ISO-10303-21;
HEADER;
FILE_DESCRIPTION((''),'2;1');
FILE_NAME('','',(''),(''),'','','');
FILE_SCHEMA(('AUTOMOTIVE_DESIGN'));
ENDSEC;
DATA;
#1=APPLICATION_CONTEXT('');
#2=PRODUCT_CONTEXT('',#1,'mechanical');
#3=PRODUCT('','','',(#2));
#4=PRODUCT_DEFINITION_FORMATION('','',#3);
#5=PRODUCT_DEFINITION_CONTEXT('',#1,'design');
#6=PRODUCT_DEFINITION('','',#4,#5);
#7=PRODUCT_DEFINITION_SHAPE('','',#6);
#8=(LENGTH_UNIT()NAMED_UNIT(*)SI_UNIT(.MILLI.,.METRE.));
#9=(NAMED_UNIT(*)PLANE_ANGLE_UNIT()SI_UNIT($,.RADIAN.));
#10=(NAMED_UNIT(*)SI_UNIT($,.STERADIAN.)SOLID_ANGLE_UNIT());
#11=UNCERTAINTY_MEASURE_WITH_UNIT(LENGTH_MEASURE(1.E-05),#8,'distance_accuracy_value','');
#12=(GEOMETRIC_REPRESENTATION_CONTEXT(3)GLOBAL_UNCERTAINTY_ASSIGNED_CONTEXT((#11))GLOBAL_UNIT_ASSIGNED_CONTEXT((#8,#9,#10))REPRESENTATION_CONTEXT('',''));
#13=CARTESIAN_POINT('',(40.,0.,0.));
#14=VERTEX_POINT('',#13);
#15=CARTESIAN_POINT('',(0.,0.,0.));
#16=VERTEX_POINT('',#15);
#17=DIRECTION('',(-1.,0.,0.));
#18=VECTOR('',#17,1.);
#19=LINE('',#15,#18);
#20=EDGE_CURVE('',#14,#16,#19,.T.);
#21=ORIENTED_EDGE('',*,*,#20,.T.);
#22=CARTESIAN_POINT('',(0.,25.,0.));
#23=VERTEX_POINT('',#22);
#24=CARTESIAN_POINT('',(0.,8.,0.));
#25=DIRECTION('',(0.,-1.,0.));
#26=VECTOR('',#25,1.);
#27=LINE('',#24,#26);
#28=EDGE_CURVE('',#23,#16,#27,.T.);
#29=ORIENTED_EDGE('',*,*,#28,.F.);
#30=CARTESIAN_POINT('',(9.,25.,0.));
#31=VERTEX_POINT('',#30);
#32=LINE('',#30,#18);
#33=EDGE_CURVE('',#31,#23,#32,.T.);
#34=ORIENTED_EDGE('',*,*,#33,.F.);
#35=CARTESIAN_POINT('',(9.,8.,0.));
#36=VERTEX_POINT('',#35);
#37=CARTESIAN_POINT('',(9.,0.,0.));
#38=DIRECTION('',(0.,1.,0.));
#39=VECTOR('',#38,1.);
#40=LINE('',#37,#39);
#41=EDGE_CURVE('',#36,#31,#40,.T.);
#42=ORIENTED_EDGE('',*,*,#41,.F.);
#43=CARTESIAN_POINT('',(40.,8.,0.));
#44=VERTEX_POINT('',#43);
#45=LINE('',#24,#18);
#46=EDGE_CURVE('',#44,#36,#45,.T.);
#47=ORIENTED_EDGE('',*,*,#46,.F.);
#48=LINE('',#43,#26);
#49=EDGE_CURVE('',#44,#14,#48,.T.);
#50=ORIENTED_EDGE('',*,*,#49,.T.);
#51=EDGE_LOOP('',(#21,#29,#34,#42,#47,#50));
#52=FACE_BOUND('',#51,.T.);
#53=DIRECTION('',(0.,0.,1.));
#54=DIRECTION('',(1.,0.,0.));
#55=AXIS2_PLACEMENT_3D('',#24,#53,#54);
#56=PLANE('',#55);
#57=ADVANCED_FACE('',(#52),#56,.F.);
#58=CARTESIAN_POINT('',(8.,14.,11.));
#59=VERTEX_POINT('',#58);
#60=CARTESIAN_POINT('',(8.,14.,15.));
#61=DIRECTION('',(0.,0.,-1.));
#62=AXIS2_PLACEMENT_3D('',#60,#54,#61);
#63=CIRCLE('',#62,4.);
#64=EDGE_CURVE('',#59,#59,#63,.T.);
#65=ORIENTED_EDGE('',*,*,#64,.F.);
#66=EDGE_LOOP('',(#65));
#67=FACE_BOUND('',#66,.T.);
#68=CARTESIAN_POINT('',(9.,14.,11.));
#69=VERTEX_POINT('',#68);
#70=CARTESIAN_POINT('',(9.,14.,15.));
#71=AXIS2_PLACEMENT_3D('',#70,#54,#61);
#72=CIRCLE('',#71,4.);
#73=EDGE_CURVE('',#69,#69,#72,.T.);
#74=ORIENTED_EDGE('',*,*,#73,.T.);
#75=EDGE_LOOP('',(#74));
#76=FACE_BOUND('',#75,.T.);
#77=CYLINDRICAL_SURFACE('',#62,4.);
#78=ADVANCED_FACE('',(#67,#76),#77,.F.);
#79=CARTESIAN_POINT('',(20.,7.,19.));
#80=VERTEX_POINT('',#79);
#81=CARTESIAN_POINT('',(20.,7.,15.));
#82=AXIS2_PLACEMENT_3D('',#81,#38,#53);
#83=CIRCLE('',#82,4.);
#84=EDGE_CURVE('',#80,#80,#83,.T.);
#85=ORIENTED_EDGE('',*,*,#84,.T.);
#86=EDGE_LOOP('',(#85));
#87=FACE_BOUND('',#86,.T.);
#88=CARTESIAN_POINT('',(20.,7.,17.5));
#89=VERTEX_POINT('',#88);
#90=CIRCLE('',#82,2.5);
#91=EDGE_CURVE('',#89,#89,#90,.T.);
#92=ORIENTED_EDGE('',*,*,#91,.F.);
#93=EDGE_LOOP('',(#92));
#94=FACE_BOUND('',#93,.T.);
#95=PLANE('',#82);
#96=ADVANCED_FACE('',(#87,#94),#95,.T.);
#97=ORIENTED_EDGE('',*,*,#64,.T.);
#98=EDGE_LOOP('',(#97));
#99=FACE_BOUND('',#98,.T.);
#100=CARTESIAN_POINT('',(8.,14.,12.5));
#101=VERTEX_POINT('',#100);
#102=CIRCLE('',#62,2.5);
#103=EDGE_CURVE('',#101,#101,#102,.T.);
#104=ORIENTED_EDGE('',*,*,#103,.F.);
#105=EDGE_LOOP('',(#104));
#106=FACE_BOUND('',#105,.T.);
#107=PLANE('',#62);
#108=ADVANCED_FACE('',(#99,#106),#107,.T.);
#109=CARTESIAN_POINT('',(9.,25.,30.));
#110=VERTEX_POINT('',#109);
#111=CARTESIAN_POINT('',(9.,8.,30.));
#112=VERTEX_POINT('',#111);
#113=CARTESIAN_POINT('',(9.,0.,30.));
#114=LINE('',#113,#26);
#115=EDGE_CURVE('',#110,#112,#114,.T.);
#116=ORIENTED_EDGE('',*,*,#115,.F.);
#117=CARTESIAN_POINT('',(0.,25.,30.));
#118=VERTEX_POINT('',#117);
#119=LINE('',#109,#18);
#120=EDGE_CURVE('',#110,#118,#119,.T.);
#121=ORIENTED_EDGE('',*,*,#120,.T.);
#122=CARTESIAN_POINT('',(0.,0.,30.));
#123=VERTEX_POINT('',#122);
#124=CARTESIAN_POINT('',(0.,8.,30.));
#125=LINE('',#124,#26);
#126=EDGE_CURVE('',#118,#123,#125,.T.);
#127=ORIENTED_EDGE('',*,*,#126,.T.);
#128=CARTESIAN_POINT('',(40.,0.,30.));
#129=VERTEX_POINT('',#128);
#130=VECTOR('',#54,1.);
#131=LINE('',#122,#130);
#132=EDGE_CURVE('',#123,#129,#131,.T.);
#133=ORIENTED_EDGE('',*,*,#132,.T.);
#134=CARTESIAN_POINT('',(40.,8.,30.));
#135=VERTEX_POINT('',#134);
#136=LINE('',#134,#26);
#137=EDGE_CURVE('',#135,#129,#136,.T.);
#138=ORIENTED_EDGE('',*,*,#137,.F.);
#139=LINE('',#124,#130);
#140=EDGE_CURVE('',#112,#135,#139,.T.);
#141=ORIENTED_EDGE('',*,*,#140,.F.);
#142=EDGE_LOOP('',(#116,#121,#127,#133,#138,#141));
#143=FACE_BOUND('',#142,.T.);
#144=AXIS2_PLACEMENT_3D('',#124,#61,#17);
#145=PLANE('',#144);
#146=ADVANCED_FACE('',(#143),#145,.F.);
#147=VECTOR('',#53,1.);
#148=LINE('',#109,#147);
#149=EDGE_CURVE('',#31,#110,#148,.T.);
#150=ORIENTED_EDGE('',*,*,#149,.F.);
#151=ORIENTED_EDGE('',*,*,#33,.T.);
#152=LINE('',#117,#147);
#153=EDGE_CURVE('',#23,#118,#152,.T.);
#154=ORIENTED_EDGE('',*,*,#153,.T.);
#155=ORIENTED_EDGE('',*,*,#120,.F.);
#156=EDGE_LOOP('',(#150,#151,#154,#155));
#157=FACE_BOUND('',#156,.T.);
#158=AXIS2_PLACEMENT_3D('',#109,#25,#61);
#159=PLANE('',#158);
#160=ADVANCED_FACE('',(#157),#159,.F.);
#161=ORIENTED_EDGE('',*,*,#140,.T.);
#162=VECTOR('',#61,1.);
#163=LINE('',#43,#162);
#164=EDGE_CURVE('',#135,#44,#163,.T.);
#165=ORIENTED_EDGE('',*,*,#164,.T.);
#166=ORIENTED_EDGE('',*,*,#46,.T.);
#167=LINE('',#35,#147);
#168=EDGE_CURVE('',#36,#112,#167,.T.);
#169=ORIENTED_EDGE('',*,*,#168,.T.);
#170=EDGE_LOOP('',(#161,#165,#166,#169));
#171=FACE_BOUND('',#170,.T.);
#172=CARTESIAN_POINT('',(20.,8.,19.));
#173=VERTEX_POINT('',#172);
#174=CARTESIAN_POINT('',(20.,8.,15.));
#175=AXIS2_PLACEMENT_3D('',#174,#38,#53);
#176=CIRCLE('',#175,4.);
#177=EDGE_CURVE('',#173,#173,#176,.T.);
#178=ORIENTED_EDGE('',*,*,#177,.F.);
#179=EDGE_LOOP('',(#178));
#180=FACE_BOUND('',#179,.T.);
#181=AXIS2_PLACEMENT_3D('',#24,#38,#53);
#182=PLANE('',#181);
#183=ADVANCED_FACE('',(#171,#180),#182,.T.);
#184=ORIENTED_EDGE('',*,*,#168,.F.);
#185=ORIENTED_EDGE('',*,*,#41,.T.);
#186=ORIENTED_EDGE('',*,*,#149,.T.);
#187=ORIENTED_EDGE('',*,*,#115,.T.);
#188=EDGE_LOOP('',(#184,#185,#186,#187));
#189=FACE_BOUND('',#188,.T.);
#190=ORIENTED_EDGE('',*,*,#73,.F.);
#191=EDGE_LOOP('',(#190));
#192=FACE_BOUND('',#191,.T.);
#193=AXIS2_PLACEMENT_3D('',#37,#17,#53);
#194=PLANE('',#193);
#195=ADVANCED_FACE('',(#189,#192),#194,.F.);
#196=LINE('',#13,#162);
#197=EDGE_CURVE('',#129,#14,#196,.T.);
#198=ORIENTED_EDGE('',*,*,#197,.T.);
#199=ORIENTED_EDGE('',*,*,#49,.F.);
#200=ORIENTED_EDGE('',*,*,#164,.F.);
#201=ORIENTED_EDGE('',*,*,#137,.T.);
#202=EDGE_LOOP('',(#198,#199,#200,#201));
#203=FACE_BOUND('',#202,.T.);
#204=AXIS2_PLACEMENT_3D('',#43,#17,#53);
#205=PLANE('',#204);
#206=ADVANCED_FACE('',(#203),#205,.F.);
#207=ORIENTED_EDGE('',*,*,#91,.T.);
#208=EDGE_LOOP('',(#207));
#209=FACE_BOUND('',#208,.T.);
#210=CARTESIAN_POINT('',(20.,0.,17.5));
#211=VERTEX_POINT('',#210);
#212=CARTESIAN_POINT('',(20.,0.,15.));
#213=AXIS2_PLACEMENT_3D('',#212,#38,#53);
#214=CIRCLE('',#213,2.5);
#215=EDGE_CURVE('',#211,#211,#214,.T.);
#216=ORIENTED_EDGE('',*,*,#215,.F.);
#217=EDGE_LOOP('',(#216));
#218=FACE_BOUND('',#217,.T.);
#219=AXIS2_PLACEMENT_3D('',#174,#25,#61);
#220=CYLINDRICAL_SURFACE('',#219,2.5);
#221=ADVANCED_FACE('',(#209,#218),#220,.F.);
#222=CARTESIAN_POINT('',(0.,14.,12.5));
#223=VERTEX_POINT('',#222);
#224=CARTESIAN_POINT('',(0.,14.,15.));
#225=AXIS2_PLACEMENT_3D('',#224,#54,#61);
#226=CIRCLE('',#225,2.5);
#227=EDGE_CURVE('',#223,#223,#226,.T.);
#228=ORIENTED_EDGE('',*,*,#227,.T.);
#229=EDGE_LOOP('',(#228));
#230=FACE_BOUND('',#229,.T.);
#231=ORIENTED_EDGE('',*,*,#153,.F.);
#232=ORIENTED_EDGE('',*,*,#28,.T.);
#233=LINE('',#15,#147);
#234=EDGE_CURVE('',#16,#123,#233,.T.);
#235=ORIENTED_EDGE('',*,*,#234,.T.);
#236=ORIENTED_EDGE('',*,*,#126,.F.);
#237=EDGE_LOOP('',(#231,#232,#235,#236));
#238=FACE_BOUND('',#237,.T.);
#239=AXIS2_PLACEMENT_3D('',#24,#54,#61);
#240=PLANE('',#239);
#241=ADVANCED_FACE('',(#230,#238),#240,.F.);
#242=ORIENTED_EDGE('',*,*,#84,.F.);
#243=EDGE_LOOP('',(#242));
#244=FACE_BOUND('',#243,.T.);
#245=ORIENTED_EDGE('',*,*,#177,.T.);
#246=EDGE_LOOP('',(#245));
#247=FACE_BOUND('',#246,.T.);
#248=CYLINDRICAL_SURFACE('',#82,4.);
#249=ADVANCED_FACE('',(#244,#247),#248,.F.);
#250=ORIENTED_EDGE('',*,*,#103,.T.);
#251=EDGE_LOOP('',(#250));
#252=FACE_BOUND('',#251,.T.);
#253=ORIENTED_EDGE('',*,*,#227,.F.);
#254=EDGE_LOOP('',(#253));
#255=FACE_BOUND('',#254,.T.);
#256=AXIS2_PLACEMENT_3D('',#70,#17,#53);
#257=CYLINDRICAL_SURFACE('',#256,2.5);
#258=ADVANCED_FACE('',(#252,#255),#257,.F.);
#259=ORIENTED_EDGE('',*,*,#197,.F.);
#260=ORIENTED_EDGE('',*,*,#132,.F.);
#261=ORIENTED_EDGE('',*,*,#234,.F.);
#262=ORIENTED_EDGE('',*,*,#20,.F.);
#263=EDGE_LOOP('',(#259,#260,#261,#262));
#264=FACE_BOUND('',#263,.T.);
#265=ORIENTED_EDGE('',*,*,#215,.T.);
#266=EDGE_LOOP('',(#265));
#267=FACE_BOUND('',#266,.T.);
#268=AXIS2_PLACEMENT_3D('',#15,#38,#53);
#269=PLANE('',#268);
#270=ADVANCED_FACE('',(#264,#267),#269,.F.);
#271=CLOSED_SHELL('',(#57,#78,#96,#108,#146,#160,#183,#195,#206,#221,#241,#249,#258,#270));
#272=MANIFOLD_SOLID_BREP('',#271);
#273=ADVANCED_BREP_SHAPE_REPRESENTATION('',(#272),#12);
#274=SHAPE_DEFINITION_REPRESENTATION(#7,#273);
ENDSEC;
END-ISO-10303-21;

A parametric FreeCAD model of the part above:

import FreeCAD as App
import Part
import Sketcher

V = App.Vector

doc = App.newDocument("Part")
body = doc.addObject("PartDesign::Body", "Body")

sketch1 = body.newObject("Sketcher::SketchObject", "Sketch")
sketch1.AttachmentSupport = (doc.getObject("XZ_Plane"), [""])
sketch1.MapMode = "FlatFace"
sketch1.addGeometry(Part.LineSegment(V(0, 0, 0), V(0, 30, 0)), False)
sketch1.addGeometry(Part.LineSegment(V(0, 30, 0), V(40, 30, 0)), False)
sketch1.addGeometry(Part.LineSegment(V(40, 30, 0), V(40, 0, 0)), False)
sketch1.addGeometry(Part.LineSegment(V(40, 0, 0), V(0, 0, 0)), False)
sketch1.addGeometry(Part.Circle(V(20, 15, 0), V(0, 0, 1), 2.5), False)
sketch1.addConstraint(Sketcher.Constraint("Coincident", 0, 2, 1, 1))
sketch1.addConstraint(Sketcher.Constraint("Coincident", 1, 2, 2, 1))
sketch1.addConstraint(Sketcher.Constraint("Coincident", 2, 2, 3, 1))
sketch1.addConstraint(Sketcher.Constraint("Coincident", 3, 2, 0, 1))
sketch1.addConstraint(Sketcher.Constraint("Vertical", 0))
sketch1.addConstraint(Sketcher.Constraint("Horizontal", 1))
sketch1.addConstraint(Sketcher.Constraint("Vertical", 2))
sketch1.addConstraint(Sketcher.Constraint("Horizontal", 3))
sketch1.addConstraint(Sketcher.Constraint("Coincident", 3, 2, -1, 1))
sketch1.addConstraint(Sketcher.Constraint("Diameter", 4, 5.0))
sketch1.addConstraint(Sketcher.Constraint("DistanceX", 1, 1, 1, 2, 40.0))
sketch1.addConstraint(Sketcher.Constraint("DistanceY", 0, 1, 0, 2, 30.0))
sketch1.addConstraint(Sketcher.Constraint("DistanceX", -1, 1, 4, 3, 20.0))
sketch1.addConstraint(Sketcher.Constraint("DistanceY", -1, 1, 4, 3, 15.0))
pad1 = body.newObject("PartDesign::Pad", "Pad")
pad1.Profile = sketch1
pad1.Length = 8
pad1.Reversed = True

sketch2 = body.newObject("Sketcher::SketchObject", "Sketch001")
sketch2.AttachmentSupport = (doc.getObject("YZ_Plane"), [""])
sketch2.MapMode = "FlatFace"
sketch2.addGeometry(Part.LineSegment(V(25, 30, 0), V(0, 30, 0)), False)
sketch2.addGeometry(Part.LineSegment(V(0, 30, 0), V(0, 0, 0)), False)
sketch2.addGeometry(Part.LineSegment(V(0, 0, 0), V(25, 0, 0)), False)
sketch2.addGeometry(Part.LineSegment(V(25, 0, 0), V(25, 30, 0)), False)
sketch2.addGeometry(Part.Circle(V(14, 15, 0), V(0, 0, 1), 2.5), False)
sketch2.addConstraint(Sketcher.Constraint("Coincident", 0, 2, 1, 1))
sketch2.addConstraint(Sketcher.Constraint("Coincident", 1, 2, 2, 1))
sketch2.addConstraint(Sketcher.Constraint("Coincident", 2, 2, 3, 1))
sketch2.addConstraint(Sketcher.Constraint("Coincident", 3, 2, 0, 1))
sketch2.addConstraint(Sketcher.Constraint("Horizontal", 0))
sketch2.addConstraint(Sketcher.Constraint("Vertical", 1))
sketch2.addConstraint(Sketcher.Constraint("Horizontal", 2))
sketch2.addConstraint(Sketcher.Constraint("Vertical", 3))
sketch2.addConstraint(Sketcher.Constraint("Coincident", 1, 2, -1, 1))
sketch2.addConstraint(Sketcher.Constraint("Diameter", 4, 5.0))
sketch2.addConstraint(Sketcher.Constraint("DistanceX", 0, 2, 0, 1, 25.0))
sketch2.addConstraint(Sketcher.Constraint("DistanceY", 1, 2, 1, 1, 30.0))
sketch2.addConstraint(Sketcher.Constraint("DistanceX", -1, 1, 4, 3, 14.0))
sketch2.addConstraint(Sketcher.Constraint("DistanceY", -1, 1, 4, 3, 15.0))
pad2 = body.newObject("PartDesign::Pad", "Pad001")
pad2.Profile = sketch2
pad2.Length = 9

sketch3 = body.newObject("Sketcher::SketchObject", "Sketch002")
sketch3.AttachmentSupport = (doc.getObject("XZ_Plane"), [""])
sketch3.MapMode = "FlatFace"
sketch3.AttachmentOffset = App.Placement(V(0, 0, -8), App.Rotation())
sketch3.addGeometry(Part.Circle(V(20, 15, 0), V(0, 0, 1), 4), False)
sketch3.addConstraint(Sketcher.Constraint("Diameter", 0, 8.0))
sketch3.addConstraint(Sketcher.Constraint("DistanceX", -1, 1, 0, 3, 20.0))
sketch3.addConstraint(Sketcher.Constraint("DistanceY", -1, 1, 0, 3, 15.0))
pocket1 = body.newObject("PartDesign::Pocket", "Pocket")
pocket1.Profile = sketch3
pocket1.Length = 1
pocket1.Reversed = True

sketch4 = body.newObject("Sketcher::SketchObject", "Sketch003")
sketch4.AttachmentSupport = (doc.getObject("YZ_Plane"), [""])
sketch4.MapMode = "FlatFace"
sketch4.AttachmentOffset = App.Placement(V(0, 0, 9), App.Rotation())
sketch4.addGeometry(Part.Circle(V(14, 15, 0), V(0, 0, 1), 4), False)
sketch4.addConstraint(Sketcher.Constraint("Diameter", 0, 8.0))
sketch4.addConstraint(Sketcher.Constraint("DistanceX", -1, 1, 0, 3, 14.0))
sketch4.addConstraint(Sketcher.Constraint("DistanceY", -1, 1, 0, 3, 15.0))
pocket2 = body.newObject("PartDesign::Pocket", "Pocket001")
pocket2.Profile = sketch4
pocket2.Length = 1

doc.recompute()
